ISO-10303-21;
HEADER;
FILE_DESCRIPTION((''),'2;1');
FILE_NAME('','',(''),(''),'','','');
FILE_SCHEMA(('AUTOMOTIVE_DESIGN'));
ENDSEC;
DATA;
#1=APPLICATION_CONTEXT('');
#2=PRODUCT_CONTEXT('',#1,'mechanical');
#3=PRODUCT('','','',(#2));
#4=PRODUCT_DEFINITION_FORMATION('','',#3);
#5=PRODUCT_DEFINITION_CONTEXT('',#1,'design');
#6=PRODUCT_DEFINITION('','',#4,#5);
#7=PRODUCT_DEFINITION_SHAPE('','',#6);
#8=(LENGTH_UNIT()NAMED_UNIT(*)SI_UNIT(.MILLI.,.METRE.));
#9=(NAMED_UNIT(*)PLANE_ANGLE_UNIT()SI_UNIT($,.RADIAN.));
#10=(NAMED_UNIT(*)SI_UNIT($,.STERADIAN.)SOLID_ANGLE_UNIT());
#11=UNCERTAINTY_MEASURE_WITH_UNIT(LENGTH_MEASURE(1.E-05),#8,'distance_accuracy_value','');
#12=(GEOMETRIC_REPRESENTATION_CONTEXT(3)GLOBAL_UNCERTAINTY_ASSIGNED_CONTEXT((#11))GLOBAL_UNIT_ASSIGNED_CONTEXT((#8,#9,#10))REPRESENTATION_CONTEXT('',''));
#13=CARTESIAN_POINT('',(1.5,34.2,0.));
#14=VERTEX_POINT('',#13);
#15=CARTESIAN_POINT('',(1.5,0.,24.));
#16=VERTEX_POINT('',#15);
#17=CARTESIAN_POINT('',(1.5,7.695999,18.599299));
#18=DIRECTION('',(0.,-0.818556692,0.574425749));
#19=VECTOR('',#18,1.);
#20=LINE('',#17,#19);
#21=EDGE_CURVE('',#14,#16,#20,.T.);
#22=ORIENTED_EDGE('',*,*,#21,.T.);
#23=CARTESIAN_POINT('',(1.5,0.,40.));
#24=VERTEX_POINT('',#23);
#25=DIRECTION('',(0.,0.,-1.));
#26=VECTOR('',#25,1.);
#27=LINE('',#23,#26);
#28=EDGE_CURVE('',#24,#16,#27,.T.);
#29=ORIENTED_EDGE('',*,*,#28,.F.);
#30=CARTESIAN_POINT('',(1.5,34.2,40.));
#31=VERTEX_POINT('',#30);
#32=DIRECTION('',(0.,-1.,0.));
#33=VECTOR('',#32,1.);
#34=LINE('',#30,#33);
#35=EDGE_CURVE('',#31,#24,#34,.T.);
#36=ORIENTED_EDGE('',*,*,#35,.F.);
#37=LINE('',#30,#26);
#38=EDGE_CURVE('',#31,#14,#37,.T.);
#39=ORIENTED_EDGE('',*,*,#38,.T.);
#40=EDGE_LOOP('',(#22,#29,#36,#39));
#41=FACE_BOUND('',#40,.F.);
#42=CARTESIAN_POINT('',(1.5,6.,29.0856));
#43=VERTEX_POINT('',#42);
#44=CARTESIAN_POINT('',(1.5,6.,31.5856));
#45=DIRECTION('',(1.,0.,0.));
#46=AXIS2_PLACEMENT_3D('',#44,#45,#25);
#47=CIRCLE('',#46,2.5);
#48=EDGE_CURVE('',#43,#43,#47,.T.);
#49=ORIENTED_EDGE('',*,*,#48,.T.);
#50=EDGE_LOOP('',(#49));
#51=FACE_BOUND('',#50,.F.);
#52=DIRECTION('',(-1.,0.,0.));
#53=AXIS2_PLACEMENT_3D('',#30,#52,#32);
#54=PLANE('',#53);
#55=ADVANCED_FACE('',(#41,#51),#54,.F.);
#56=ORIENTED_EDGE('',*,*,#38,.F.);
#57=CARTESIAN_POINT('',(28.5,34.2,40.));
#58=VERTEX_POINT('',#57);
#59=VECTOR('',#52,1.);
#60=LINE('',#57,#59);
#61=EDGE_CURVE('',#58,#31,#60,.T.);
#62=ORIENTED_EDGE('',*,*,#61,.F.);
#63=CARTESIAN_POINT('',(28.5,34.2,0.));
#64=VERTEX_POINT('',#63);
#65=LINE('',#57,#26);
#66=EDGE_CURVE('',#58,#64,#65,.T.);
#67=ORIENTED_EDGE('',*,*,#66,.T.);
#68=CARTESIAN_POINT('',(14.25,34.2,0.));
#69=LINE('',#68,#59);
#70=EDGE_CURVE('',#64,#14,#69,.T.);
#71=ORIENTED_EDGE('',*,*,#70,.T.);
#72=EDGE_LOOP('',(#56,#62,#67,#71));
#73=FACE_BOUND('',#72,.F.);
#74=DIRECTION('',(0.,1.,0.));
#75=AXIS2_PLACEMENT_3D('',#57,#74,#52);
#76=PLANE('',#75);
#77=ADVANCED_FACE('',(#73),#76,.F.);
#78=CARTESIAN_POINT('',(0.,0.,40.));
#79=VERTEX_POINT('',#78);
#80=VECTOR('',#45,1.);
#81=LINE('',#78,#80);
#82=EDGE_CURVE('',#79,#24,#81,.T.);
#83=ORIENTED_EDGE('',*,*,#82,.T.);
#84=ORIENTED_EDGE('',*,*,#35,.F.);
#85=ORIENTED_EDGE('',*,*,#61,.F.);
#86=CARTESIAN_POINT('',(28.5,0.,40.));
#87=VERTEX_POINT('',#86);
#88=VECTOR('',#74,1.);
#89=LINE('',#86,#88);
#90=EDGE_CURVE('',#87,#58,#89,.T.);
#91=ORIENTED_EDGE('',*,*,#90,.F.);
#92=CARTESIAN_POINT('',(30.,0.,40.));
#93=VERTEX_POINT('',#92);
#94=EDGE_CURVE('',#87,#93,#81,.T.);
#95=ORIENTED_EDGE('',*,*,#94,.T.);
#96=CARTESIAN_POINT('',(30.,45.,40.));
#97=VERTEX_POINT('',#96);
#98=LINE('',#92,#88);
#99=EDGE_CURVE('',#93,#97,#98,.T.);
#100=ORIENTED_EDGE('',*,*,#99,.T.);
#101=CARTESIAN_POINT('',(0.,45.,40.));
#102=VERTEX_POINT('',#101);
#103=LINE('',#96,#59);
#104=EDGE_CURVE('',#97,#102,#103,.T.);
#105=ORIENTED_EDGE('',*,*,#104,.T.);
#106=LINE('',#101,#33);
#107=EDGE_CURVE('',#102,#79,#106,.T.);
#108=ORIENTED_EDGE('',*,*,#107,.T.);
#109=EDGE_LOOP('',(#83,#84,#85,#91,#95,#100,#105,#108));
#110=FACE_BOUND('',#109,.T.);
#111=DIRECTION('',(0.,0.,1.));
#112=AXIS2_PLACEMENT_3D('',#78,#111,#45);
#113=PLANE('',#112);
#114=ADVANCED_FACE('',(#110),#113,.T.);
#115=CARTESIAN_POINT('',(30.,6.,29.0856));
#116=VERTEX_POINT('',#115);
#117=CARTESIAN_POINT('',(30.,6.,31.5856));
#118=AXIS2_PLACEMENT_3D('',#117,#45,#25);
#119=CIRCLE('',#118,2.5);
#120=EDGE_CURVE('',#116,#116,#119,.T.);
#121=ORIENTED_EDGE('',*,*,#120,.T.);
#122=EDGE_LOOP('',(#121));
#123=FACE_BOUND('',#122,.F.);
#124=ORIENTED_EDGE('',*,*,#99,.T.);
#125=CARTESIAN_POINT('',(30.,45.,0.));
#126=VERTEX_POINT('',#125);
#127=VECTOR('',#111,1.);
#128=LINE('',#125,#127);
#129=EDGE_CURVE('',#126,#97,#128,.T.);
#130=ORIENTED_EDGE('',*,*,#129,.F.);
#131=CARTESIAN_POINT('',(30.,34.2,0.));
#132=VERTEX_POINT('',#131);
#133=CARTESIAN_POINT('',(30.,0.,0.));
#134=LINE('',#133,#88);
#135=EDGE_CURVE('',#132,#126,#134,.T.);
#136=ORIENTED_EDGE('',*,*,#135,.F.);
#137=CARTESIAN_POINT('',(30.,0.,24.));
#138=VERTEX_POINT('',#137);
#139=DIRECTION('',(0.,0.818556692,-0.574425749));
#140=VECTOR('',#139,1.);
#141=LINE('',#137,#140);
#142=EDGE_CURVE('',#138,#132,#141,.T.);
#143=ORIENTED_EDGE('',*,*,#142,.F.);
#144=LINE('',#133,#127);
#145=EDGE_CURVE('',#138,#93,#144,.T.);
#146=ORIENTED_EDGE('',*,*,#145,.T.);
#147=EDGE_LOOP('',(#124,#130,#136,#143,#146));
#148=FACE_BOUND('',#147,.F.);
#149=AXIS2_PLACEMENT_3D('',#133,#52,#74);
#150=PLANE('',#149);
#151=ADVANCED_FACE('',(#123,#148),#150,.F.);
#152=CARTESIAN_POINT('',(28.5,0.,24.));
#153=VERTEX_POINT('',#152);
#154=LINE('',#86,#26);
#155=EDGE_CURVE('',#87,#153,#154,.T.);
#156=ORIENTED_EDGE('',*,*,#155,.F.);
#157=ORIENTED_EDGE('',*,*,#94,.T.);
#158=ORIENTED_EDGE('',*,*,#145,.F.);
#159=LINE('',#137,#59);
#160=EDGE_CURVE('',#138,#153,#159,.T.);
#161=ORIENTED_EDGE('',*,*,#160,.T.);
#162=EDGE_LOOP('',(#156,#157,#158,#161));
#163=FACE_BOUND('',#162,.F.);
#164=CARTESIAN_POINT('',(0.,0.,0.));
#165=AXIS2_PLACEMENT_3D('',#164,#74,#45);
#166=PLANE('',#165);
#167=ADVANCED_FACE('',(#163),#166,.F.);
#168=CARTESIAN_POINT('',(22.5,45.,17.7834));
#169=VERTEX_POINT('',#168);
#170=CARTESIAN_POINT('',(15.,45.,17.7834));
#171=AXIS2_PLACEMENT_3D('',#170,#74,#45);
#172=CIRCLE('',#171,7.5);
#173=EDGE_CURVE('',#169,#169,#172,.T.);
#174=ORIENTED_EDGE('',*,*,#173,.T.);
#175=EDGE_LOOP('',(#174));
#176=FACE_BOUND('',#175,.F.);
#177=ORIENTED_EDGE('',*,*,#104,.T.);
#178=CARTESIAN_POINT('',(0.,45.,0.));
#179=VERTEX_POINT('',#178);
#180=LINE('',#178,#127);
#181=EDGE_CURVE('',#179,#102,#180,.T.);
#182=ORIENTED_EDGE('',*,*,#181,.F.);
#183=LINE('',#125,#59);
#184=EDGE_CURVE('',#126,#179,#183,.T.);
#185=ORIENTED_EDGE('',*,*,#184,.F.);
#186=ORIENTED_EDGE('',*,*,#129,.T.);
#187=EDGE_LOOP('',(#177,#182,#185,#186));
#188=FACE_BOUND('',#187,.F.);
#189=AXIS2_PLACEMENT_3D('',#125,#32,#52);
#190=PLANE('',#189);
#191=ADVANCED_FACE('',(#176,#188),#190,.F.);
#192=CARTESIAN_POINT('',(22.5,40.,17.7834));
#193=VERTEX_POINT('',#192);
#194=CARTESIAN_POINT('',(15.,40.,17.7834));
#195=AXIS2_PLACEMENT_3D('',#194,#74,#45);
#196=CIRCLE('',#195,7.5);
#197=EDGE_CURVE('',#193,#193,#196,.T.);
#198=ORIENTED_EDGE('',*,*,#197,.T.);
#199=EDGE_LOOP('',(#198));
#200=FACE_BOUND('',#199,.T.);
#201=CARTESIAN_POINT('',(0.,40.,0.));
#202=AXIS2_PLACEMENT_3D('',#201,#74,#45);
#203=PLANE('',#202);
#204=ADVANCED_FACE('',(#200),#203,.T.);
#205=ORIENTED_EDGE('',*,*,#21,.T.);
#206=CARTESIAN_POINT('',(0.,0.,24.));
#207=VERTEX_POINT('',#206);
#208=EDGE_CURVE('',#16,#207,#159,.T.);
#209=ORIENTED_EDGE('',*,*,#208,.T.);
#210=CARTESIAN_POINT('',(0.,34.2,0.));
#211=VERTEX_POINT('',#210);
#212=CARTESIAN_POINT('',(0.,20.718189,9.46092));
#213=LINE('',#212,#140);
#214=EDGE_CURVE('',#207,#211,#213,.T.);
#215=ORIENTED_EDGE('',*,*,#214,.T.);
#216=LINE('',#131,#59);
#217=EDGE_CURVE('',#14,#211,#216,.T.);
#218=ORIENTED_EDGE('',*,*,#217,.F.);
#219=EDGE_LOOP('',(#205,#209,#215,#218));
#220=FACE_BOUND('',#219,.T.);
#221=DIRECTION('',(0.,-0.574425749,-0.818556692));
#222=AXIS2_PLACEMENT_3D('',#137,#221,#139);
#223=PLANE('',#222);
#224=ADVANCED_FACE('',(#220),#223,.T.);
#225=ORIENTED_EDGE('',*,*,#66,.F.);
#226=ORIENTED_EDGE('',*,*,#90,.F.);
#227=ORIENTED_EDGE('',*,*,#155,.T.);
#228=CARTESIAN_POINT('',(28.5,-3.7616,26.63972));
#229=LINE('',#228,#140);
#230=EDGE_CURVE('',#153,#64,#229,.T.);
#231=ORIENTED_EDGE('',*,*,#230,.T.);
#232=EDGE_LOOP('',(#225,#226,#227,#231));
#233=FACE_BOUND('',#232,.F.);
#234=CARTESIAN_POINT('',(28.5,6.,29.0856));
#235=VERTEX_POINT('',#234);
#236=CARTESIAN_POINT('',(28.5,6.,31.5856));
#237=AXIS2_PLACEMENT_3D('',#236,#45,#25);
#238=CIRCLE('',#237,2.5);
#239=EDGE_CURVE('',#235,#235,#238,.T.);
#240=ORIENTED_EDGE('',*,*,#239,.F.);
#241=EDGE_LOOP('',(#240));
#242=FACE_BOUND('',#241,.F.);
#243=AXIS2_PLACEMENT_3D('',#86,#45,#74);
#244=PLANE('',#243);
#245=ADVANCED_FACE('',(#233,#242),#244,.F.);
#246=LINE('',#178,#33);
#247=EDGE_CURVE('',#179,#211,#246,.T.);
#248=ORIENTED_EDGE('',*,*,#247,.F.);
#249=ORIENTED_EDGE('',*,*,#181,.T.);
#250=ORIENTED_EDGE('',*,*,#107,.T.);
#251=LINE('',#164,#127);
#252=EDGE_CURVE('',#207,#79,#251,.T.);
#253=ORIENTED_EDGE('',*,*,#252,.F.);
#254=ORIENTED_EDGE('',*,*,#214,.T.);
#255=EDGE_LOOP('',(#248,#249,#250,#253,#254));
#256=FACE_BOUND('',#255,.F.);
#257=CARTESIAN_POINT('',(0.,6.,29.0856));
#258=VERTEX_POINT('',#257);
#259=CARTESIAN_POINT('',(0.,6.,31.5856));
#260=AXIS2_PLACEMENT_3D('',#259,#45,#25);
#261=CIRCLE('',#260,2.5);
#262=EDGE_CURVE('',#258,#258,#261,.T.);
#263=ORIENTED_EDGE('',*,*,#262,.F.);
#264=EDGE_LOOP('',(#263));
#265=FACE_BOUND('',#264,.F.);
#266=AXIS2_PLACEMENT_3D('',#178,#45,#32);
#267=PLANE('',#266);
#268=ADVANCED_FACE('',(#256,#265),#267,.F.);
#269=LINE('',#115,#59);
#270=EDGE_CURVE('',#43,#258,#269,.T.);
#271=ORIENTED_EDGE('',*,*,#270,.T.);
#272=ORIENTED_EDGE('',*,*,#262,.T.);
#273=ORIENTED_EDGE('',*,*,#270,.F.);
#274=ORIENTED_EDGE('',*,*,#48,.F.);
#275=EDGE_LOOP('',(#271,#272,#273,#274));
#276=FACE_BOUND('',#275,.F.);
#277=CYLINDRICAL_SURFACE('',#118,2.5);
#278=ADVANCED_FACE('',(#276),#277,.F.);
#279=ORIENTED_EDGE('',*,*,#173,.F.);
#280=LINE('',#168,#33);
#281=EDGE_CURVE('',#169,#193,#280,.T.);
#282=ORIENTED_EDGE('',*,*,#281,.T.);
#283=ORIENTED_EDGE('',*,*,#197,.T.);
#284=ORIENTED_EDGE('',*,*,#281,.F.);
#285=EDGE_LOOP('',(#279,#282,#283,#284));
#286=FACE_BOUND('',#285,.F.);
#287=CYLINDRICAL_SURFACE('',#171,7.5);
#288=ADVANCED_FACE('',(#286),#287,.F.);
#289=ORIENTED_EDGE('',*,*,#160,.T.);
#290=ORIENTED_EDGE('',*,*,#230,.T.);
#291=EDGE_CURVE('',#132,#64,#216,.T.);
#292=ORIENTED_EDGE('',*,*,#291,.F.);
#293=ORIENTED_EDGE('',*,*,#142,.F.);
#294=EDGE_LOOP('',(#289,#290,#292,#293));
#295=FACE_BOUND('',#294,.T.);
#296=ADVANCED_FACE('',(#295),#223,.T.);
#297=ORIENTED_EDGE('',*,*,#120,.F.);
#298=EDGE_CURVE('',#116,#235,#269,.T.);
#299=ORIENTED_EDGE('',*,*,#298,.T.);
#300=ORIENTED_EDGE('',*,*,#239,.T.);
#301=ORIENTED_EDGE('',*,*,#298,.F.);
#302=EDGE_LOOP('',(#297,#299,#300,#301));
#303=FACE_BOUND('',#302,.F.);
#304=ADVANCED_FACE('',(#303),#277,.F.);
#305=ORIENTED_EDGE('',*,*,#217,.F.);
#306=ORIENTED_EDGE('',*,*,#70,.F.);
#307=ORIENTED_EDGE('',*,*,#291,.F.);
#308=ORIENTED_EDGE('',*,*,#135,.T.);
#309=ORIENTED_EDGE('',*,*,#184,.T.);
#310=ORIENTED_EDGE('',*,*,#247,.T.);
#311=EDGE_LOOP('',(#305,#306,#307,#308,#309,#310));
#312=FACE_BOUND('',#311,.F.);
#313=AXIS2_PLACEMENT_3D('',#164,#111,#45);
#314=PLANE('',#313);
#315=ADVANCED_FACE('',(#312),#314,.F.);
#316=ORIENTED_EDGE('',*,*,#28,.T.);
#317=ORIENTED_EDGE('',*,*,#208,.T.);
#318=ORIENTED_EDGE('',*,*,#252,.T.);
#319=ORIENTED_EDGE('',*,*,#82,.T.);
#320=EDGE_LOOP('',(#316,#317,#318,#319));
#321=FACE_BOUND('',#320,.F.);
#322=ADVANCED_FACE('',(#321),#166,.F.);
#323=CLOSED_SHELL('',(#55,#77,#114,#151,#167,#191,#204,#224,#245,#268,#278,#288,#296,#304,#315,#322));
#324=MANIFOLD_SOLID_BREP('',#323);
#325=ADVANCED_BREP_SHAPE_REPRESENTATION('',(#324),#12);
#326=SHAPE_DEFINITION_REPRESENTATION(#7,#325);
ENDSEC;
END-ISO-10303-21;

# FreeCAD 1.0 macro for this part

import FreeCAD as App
import Part
import Sketcher
from FreeCAD import Vector

doc = App.newDocument("Part")
params = doc.addObject("Spreadsheet::Sheet", "Params")
for row, (alias, value) in enumerate([
    ("sketch1_width", "30 mm"),
    ("sketch1_height", "45 mm"),
    ("pad1_length", "40 mm"),
    ("sketch2_diameter", "15 mm"),
    ("pocket1_length", "5 mm"),
    ("sketch3_diameter", "5 mm"),
    ("sketch4_width", "27 mm"),
    ("sketch4_height", "34.2 mm"),
    ("sketch5_height", "24 mm"),
    ("sketch5_width", "34.2 mm"),
], start=1):
    params.set(f"A{row}", alias)
    params.set(f"B{row}", "=" + value)
    params.setAlias(f"B{row}", alias)

body = doc.addObject("PartDesign::Body", "Body")

sketch1 = doc.addObject("Sketcher::SketchObject", "Sketch")
body.addObject(sketch1)
sketch1.AttachmentSupport = (doc.XY_Plane, [""])
sketch1.MapMode = "FlatFace"
sketch1.addGeometry(Part.LineSegment(Vector(0, 45, 0), Vector(0, 0, 0)), False)
sketch1.addGeometry(Part.LineSegment(Vector(0, 0, 0), Vector(30, 0, 0)), False)
sketch1.addGeometry(Part.LineSegment(Vector(30, 0, 0), Vector(30, 45, 0)), False)
sketch1.addGeometry(Part.LineSegment(Vector(30, 45, 0), Vector(0, 45, 0)), False)
sketch1.addConstraint(Sketcher.Constraint("Coincident", 0, 2, 1, 1))
sketch1.addConstraint(Sketcher.Constraint("Coincident", 1, 2, 2, 1))
sketch1.addConstraint(Sketcher.Constraint("Coincident", 2, 2, 3, 1))
sketch1.addConstraint(Sketcher.Constraint("Coincident", 3, 2, 0, 1))
sketch1.addConstraint(Sketcher.Constraint("Vertical", 0))
sketch1.addConstraint(Sketcher.Constraint("Horizontal", 1))
sketch1.addConstraint(Sketcher.Constraint("Vertical", 2))
sketch1.addConstraint(Sketcher.Constraint("Horizontal", 3))
sketch1.addConstraint(Sketcher.Constraint("Coincident", 0, 2, -1, 1))
sketch1.addConstraint(Sketcher.Constraint("DistanceX", 1, 1, 1, 2, 30.0))
sketch1.addConstraint(Sketcher.Constraint("DistanceY", 0, 2, 0, 1, 45.0))
sketch1.setExpression("Constraints[9]", "Params.sketch1_width")
sketch1.setExpression("Constraints[10]", "Params.sketch1_height")
pad1 = doc.addObject("PartDesign::Pad", "Pad")
body.addObject(pad1)
pad1.Profile = sketch1
pad1.setExpression("Length", "Params.pad1_length")

sketch2 = doc.addObject("Sketcher::SketchObject", "Sketch001")
body.addObject(sketch2)
sketch2.AttachmentSupport = (doc.XZ_Plane, [""])
sketch2.MapMode = "FlatFace"
sketch2.AttachmentOffset = App.Placement(Vector(0, 0, -45), App.Rotation())
sketch2.addGeometry(Part.Circle(Vector(15, 18, 0), Vector(0, 0, 1), 8), False)
sketch2.addConstraint(Sketcher.Constraint("Diameter", 0, 15.0))
sketch2.addConstraint(Sketcher.Constraint("DistanceX", -1, 1, 0, 3, 15.0))
sketch2.addConstraint(Sketcher.Constraint("DistanceY", -1, 1, 0, 3, 17.7834))
sketch2.setExpression("Constraints[0]", "Params.sketch2_diameter")
pocket1 = doc.addObject("PartDesign::Pocket", "Pocket")
body.addObject(pocket1)
pocket1.Profile = sketch2
pocket1.setExpression("Length", "Params.pocket1_length")
pocket1.Reversed = True

sketch3 = doc.addObject("Sketcher::SketchObject", "Sketch002")
body.addObject(sketch3)
sketch3.AttachmentSupport = (doc.YZ_Plane, [""])
sketch3.MapMode = "FlatFace"
sketch3.AttachmentOffset = App.Placement(Vector(0, 0, 30), App.Rotation())
sketch3.addGeometry(Part.Circle(Vector(6, 31.6, 0), Vector(0, 0, 1), 2.5), False)
sketch3.addConstraint(Sketcher.Constraint("Diameter", 0, 5.0))
sketch3.addConstraint(Sketcher.Constraint("DistanceX", -1, 1, 0, 3, 6.0))
sketch3.addConstraint(Sketcher.Constraint("DistanceY", -1, 1, 0, 3, 31.5856))
sketch3.setExpression("Constraints[0]", "Params.sketch3_diameter")
pocket2 = doc.addObject("PartDesign::Pocket", "Pocket001")
body.addObject(pocket2)
pocket2.Profile = sketch3
pocket2.Type = "ThroughAll"

sketch4 = doc.addObject("Sketcher::SketchObject", "Sketch003")
body.addObject(sketch4)
sketch4.AttachmentSupport = (doc.XY_Plane, [""])
sketch4.MapMode = "FlatFace"
sketch4.AttachmentOffset = App.Placement(Vector(0, 0, 40), App.Rotation())
sketch4.addGeometry(Part.LineSegment(Vector(2, 34, 0), Vector(2, 0, 0)), False)
sketch4.addGeometry(Part.LineSegment(Vector(2, 0, 0), Vector(28, 0, 0)), False)
sketch4.addGeometry(Part.LineSegment(Vector(28, 0, 0), Vector(28, 34, 0)), False)
sketch4.addGeometry(Part.LineSegment(Vector(28, 34, 0), Vector(2, 34, 0)), False)
sketch4.addConstraint(Sketcher.Constraint("Coincident", 0, 2, 1, 1))
sketch4.addConstraint(Sketcher.Constraint("Coincident", 1, 2, 2, 1))
sketch4.addConstraint(Sketcher.Constraint("Coincident", 2, 2, 3, 1))
sketch4.addConstraint(Sketcher.Constraint("Coincident", 3, 2, 0, 1))
sketch4.addConstraint(Sketcher.Constraint("Vertical", 0))
sketch4.addConstraint(Sketcher.Constraint("Horizontal", 1))
sketch4.addConstraint(Sketcher.Constraint("Vertical", 2))
sketch4.addConstraint(Sketcher.Constraint("Horizontal", 3))
sketch4.addConstraint(Sketcher.Constraint("PointOnObject", 0, 2, -1))
sketch4.addConstraint(Sketcher.Constraint("DistanceX", 1, 1, 1, 2, 27.0))
sketch4.addConstraint(Sketcher.Constraint("DistanceY", 0, 2, 0, 1, 34.2))
sketch4.addConstraint(Sketcher.Constraint("DistanceX", -1, 1, 0, 2, 1.5))
sketch4.setExpression("Constraints[9]", "Params.sketch4_width")
sketch4.setExpression("Constraints[10]", "Params.sketch4_height")
pocket3 = doc.addObject("PartDesign::Pocket", "Pocket002")
body.addObject(pocket3)
pocket3.Profile = sketch4
pocket3.Type = "ThroughAll"

sketch5 = doc.addObject("Sketcher::SketchObject", "Sketch004")
body.addObject(sketch5)
sketch5.AttachmentSupport = (doc.YZ_Plane, [""])
sketch5.MapMode = "FlatFace"
sketch5.AttachmentOffset = App.Placement(Vector(0, 0, 30), App.Rotation())
sketch5.addGeometry(Part.LineSegment(Vector(34, 0, 0), Vector(0, 24, 0)), False)
sketch5.addGeometry(Part.LineSegment(Vector(0, 24, 0), Vector(0, 0, 0)), False)
sketch5.addGeometry(Part.LineSegment(Vector(0, 0, 0), Vector(34, 0, 0)), False)
sketch5.addConstraint(Sketcher.Constraint("Coincident", 0, 2, 1, 1))
sketch5.addConstraint(Sketcher.Constraint("Coincident", 1, 2, 2, 1))
sketch5.addConstraint(Sketcher.Constraint("Coincident", 2, 2, 0, 1))
sketch5.addConstraint(Sketcher.Constraint("Vertical", 1))
sketch5.addConstraint(Sketcher.Constraint("Horizontal", 2))
sketch5.addConstraint(Sketcher.Constraint("Coincident", 1, 2, -1, 1))
sketch5.addConstraint(Sketcher.Constraint("DistanceY", 1, 2, 1, 1, 24.0))
sketch5.addConstraint(Sketcher.Constraint("DistanceX", 2, 1, 2, 2, 34.2))
sketch5.setExpression("Constraints[6]", "Params.sketch5_height")
sketch5.setExpression("Constraints[7]", "Params.sketch5_width")
pocket4 = doc.addObject("PartDesign::Pocket", "Pocket003")
body.addObject(pocket4)
pocket4.Profile = sketch5
pocket4.Type = "ThroughAll"

doc.recompute()
